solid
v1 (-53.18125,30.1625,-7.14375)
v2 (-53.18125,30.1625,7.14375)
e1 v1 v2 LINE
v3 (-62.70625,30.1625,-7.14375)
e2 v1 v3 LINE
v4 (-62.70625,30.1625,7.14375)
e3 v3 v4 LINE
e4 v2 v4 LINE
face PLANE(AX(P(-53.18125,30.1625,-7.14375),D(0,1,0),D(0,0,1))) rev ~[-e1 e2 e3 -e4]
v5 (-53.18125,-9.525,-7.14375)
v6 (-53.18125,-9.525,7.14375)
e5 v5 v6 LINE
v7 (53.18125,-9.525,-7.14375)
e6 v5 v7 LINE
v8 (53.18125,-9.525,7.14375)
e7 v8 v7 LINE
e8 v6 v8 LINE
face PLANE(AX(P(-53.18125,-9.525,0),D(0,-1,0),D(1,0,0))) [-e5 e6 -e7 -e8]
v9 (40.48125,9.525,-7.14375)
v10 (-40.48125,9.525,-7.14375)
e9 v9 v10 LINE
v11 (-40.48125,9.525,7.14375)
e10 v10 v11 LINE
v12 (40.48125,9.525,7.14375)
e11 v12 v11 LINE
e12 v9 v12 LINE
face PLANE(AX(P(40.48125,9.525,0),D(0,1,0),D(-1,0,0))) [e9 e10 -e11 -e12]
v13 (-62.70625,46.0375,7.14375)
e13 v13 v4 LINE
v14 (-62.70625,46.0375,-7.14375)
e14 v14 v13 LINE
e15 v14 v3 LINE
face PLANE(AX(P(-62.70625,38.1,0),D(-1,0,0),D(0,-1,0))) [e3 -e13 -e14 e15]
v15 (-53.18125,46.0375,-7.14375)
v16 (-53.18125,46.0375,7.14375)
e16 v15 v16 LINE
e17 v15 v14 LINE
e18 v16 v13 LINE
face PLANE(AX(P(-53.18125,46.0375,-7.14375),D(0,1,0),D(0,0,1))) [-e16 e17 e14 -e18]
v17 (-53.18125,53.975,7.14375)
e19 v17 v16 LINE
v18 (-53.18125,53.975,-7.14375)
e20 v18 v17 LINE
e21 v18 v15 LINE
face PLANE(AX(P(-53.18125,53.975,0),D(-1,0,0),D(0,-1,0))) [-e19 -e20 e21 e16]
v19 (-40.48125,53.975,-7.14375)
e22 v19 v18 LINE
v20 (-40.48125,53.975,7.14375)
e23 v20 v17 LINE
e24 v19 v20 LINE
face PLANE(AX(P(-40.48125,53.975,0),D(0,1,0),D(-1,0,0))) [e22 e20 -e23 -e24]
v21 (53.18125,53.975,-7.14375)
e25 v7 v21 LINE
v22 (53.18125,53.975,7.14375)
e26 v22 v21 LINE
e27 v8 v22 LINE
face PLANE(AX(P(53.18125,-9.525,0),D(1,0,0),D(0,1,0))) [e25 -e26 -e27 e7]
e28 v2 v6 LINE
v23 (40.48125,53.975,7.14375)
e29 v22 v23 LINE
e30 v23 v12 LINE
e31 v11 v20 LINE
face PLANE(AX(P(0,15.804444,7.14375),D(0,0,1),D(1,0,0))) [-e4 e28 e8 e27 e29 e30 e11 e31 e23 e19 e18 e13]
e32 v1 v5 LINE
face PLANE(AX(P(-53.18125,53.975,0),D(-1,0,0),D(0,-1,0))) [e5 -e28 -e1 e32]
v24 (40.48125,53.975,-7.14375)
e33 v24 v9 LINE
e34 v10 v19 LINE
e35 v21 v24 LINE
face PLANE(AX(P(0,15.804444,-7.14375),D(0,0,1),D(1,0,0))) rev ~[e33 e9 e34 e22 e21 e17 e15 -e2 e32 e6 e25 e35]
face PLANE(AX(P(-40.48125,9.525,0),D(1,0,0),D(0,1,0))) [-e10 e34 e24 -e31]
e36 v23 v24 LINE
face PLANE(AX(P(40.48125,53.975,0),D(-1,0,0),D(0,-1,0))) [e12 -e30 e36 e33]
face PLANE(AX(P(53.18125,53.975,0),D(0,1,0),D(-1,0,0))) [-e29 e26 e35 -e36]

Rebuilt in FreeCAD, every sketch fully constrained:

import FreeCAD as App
import Part
import Sketcher
Q = App.Units.Quantity


def add_polygon(sketch, points):
    """Adds a closed chain of lines whose ends are joined by coincident constraints."""
    first, n = sketch.GeometryCount, len(points)
    for a, b in zip(points, points[1:] + points[:1]):
        sketch.addGeometry(Part.LineSegment(App.Vector(*a, 0), App.Vector(*b, 0)), False)
    for i in range(n):
        sketch.addConstraint(Sketcher.Constraint("Coincident", first + i, 2, first + (i + 1) % n, 1))

doc = App.newDocument("Part")
body = doc.addObject("PartDesign::Body", "Body")

# Sketch on XY plane
sketch1 = body.newObject("Sketcher::SketchObject", "Sketch")
sketch1.AttachmentSupport = (doc.getObject("XY_Plane"), [""])
sketch1.MapMode = "FlatFace"
add_polygon(sketch1, [(40.48125, 53.975), (40.48125, 9.525), (-40.48125, 9.525), (-40.48125, 53.975), (-53.18125, 53.975), (-53.18125, -9.525), (53.18125, -9.525), (53.18125, 53.975)])  # lines 0-7
sketch1.addConstraint([
    Sketcher.Constraint("Vertical", 0),
    Sketcher.Constraint("Horizontal", 1),
    Sketcher.Constraint("Vertical", 2),
    Sketcher.Constraint("Horizontal", 3),
    Sketcher.Constraint("Vertical", 4),
    Sketcher.Constraint("Horizontal", 5),
    Sketcher.Constraint("Vertical", 6),
    Sketcher.Constraint("Horizontal", 7),
    Sketcher.Constraint("Symmetric", 3, 2, 6, 2, -2),
    Sketcher.Constraint("Equal", 3, 7),
    Sketcher.Constraint("DistanceX", 3, 2, 3, 1, Q("0.5 in")),
    Sketcher.Constraint("DistanceY", 4, 2, 4, 1, Q("2.5 in")),
    Sketcher.Constraint("DistanceY", 0, 2, 0, 1, Q("1.75 in")),
    Sketcher.Constraint("DistanceX", 1, 2, 1, 1, Q("3.1875 in")),
    Sketcher.Constraint("DistanceY", -1, 1, 0, 2, Q("0.375 in")),
])
pad1 = body.newObject("PartDesign::Pad", "Pad")
pad1.Profile = sketch1
pad1.Length = Q("0.5625 in")
pad1.Midplane = True

# Sketch on YZ plane
sketch2 = body.newObject("Sketcher::SketchObject", "Sketch001")
sketch2.AttachmentSupport = (doc.getObject("YZ_Plane"), [""])
sketch2.MapMode = "FlatFace"
sketch2.AttachmentOffset = App.Placement(App.Vector(0, 0, -2.09375 * 25.4), App.Rotation())
add_polygon(sketch2, [(46.0375, 7.14375), (46.0375, -7.14375), (30.1625, -7.14375), (30.1625, 7.14375)])  # lines 0-3
sketch2.addConstraint([
    Sketcher.Constraint("Vertical", 0),
    Sketcher.Constraint("Horizontal", 1),
    Sketcher.Constraint("Vertical", 2),
    Sketcher.Constraint("Horizontal", 3),
    Sketcher.Constraint("DistanceX", 1, 2, 1, 1, Q("0.625 in")),
    Sketcher.Constraint("DistanceY", 0, 2, 0, 1, Q("0.5625 in")),
    Sketcher.Constraint("DistanceX", -1, 1, 0, 2, Q("1.8125 in")),
    Sketcher.Constraint("DistanceY", 0, 2, -1, 1, Q("0.28125 in")),
])
pad2 = body.newObject("PartDesign::Pad", "Pad001")
pad2.Profile = sketch2
pad2.Length = Q("0.375 in")
pad2.Reversed = True

doc.recompute()
